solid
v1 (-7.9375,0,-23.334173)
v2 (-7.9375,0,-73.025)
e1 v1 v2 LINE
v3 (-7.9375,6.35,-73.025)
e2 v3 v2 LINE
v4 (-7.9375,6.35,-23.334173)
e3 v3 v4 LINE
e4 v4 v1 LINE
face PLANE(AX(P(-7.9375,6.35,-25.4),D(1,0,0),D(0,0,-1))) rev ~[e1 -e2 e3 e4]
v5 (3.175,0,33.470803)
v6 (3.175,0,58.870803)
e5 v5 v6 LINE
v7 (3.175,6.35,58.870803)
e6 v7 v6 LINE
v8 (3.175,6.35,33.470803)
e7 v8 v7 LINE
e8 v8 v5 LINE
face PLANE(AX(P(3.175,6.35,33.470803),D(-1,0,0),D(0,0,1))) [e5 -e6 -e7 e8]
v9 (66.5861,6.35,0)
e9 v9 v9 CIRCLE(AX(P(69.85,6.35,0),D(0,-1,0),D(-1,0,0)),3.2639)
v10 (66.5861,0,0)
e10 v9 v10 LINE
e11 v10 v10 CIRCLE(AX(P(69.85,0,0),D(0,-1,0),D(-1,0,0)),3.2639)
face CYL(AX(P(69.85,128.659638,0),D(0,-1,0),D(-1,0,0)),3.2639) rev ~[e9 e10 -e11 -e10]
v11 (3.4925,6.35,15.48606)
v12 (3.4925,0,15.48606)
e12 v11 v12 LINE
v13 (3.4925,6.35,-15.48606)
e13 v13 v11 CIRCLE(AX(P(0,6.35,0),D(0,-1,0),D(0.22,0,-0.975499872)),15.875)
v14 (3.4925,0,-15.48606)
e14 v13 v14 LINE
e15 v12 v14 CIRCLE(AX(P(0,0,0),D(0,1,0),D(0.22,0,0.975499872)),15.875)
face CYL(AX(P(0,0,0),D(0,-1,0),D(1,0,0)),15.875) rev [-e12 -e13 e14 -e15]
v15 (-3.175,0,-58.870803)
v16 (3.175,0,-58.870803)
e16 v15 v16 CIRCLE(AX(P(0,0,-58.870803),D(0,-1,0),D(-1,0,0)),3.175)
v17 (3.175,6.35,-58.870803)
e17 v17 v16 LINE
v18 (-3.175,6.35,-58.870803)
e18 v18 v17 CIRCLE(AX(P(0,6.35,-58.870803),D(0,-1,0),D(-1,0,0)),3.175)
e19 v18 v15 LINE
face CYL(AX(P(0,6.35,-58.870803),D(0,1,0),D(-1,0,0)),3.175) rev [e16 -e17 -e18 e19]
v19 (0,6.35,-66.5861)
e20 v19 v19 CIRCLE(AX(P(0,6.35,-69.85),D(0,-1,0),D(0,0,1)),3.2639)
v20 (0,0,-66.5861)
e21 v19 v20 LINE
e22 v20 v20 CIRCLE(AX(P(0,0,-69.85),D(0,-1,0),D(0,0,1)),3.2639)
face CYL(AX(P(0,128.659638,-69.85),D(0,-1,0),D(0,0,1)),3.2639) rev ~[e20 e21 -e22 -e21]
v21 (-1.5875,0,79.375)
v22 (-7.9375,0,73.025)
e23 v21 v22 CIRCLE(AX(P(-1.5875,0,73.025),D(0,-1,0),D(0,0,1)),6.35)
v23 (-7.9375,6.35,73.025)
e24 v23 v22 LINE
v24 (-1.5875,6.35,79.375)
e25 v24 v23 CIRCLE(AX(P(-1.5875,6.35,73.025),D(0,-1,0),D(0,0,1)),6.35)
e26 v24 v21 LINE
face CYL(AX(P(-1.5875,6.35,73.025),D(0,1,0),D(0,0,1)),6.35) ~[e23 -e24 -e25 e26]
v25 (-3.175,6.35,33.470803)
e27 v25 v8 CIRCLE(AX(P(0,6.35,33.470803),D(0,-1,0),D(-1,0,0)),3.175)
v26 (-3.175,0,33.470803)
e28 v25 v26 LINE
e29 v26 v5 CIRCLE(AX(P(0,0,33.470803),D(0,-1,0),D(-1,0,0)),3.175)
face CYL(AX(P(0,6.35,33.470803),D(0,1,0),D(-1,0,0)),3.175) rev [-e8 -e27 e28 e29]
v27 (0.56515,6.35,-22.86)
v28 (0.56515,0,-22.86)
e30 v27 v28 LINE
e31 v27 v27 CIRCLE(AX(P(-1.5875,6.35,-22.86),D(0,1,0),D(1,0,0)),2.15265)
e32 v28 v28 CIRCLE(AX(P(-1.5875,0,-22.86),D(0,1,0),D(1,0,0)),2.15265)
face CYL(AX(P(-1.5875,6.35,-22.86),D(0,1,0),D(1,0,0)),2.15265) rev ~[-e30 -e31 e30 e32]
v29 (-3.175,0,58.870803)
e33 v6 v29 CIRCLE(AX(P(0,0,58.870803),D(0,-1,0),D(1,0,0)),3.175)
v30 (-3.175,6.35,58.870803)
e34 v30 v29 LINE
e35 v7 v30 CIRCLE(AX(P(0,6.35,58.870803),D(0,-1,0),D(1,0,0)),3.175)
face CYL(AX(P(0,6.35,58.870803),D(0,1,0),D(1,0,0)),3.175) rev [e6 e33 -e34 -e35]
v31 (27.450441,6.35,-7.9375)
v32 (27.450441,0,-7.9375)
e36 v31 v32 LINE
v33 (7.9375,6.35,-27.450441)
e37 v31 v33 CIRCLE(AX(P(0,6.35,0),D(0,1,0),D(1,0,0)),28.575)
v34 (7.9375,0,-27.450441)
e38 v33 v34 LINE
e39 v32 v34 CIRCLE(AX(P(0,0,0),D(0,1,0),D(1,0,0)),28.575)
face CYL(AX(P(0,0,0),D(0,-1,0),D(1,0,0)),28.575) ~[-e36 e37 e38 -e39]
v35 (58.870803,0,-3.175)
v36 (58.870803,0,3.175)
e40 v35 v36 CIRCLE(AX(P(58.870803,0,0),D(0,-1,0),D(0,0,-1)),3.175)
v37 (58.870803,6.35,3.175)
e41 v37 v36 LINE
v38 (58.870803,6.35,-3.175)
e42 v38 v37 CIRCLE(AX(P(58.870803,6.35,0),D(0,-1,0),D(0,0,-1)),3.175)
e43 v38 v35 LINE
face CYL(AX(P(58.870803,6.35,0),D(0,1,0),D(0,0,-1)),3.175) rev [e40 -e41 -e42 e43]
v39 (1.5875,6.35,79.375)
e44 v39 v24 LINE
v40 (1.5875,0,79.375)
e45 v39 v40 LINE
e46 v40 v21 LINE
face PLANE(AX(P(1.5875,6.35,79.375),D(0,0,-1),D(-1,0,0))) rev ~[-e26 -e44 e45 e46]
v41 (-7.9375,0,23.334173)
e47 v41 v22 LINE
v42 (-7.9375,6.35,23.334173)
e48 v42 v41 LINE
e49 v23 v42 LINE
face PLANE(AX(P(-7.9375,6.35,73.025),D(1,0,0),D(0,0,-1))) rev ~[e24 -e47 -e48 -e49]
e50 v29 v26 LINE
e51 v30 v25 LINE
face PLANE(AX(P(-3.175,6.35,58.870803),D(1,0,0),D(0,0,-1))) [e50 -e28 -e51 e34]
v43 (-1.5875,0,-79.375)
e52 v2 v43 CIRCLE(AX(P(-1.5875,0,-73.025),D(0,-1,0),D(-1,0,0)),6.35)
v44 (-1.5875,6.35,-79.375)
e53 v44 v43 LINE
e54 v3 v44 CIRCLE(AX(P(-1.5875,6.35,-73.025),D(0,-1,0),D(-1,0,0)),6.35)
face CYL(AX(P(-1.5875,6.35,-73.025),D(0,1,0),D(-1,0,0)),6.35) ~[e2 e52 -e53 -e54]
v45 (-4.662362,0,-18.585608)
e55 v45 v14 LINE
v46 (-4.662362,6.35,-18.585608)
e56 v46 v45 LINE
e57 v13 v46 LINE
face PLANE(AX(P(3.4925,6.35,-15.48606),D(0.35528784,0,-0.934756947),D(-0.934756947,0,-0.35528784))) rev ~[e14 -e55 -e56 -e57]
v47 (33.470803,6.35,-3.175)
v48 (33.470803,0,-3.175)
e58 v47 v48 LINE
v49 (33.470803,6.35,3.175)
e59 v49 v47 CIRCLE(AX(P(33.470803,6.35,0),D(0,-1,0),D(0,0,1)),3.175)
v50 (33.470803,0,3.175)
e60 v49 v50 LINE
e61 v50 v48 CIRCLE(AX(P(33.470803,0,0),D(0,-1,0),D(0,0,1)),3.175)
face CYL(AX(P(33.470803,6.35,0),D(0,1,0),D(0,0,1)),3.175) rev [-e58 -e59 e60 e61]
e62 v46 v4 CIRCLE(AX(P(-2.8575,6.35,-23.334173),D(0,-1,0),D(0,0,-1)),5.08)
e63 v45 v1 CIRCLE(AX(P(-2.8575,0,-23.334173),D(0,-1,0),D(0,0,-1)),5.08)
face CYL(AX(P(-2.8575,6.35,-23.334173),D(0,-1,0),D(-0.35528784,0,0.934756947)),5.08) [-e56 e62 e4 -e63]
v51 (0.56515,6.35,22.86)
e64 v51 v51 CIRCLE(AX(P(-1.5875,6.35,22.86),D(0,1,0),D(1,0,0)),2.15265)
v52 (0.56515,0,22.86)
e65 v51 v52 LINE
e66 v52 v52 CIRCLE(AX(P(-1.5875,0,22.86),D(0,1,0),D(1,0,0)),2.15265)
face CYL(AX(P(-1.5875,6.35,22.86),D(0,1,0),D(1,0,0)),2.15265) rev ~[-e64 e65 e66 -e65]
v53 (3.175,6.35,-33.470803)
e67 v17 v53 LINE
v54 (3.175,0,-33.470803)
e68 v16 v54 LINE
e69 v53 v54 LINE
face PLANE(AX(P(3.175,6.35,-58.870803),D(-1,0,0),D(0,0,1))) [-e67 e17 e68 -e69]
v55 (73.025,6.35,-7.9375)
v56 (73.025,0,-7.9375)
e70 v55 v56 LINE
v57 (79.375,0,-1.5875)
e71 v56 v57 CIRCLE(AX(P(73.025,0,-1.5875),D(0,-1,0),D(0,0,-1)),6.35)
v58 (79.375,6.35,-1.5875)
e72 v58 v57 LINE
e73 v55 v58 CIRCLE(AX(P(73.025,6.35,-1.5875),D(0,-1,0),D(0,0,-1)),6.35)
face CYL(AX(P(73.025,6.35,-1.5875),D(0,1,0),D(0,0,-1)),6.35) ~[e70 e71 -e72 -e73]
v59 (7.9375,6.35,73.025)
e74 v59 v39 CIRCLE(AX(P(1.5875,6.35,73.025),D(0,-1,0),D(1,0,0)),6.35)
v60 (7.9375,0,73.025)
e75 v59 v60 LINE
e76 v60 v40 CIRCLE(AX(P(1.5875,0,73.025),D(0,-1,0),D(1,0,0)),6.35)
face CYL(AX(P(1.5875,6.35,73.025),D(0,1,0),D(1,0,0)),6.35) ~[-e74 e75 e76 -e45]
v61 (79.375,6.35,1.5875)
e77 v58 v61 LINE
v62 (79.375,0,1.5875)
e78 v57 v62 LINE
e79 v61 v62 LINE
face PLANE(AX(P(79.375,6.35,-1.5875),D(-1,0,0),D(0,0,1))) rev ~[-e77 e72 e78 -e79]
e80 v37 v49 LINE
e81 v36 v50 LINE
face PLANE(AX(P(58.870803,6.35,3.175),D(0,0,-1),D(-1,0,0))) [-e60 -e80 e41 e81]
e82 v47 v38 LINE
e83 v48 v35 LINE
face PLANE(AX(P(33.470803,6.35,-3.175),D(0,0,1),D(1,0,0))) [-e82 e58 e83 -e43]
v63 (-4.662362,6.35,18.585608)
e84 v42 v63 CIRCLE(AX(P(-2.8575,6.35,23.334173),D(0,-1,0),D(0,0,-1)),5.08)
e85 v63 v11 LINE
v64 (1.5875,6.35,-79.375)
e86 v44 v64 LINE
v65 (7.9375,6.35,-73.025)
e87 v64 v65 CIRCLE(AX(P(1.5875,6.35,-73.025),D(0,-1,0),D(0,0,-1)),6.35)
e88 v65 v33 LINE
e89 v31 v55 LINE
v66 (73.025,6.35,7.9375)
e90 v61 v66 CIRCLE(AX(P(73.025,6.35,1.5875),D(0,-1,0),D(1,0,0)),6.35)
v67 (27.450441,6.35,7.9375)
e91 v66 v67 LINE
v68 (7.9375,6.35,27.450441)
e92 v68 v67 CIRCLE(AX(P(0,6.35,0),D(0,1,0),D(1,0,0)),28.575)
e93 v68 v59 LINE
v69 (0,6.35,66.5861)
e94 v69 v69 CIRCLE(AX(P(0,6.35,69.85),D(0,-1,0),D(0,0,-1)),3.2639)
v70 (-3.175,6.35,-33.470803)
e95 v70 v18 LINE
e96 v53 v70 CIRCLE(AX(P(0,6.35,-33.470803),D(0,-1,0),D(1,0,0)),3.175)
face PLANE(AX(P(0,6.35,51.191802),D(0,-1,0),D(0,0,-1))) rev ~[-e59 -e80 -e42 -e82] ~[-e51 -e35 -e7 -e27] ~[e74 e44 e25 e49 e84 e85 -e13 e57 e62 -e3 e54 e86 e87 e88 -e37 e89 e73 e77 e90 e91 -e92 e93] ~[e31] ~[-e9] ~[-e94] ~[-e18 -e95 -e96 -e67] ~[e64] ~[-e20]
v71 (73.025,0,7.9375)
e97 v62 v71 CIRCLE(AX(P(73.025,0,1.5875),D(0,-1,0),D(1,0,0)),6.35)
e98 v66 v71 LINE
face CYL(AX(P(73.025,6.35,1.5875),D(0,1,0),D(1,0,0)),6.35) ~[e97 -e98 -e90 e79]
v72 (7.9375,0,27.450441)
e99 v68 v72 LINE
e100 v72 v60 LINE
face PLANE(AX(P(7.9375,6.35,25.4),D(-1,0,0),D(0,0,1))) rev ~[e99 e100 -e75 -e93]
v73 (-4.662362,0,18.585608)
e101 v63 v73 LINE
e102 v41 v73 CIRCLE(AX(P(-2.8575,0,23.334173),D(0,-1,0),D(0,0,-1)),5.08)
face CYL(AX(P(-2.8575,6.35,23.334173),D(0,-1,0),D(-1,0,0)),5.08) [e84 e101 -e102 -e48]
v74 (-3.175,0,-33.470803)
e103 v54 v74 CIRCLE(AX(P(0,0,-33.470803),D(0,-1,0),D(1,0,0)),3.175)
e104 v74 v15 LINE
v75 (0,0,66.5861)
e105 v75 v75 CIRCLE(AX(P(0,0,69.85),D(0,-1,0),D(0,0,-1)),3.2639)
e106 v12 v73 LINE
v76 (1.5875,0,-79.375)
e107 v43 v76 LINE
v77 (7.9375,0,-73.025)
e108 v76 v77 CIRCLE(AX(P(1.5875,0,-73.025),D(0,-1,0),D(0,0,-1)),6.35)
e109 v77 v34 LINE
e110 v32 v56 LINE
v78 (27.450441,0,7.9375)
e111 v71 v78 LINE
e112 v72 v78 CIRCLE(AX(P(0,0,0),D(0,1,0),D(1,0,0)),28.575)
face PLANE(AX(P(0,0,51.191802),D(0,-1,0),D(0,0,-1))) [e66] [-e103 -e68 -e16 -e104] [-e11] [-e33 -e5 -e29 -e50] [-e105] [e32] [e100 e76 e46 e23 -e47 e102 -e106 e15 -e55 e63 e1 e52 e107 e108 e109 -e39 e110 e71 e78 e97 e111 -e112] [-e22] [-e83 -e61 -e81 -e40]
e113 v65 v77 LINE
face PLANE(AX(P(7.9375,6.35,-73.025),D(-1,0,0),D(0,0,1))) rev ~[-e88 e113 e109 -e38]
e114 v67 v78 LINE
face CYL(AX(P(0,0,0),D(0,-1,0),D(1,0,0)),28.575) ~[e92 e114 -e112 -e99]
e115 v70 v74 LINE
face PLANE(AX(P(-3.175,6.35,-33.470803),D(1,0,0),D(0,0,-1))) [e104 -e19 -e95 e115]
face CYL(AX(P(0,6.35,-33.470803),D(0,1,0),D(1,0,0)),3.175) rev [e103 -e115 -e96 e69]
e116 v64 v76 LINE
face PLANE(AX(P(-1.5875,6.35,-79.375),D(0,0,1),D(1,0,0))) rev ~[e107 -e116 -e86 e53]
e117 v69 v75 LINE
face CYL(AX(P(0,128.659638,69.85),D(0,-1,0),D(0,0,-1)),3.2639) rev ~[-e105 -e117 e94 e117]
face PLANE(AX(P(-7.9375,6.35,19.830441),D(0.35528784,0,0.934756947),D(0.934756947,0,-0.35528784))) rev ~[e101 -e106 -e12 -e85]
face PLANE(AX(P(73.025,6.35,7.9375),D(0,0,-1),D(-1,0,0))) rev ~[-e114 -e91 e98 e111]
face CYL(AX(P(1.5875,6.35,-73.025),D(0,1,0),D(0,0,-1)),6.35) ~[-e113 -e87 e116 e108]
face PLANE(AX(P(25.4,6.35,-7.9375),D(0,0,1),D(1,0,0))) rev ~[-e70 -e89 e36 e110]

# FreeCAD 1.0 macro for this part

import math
import FreeCAD as App
import Part
import Sketcher

V = App.Vector
Q = App.Units.Quantity


def edges_at(feature, points):
    """Names of the edges that pass closest to the given points."""
    edges = feature.Shape.Edges
    near = lambda p: min(range(len(edges)), key=lambda i: edges[i].distToShape(Part.Vertex(*p))[0])
    return sorted({f"Edge{near(p) + 1}" for p in points})


def add_polygon(sketch, points):
    """Adds a closed chain of lines whose ends are joined by coincident constraints."""
    first, n = sketch.GeometryCount, len(points)
    for a, b in zip(points, points[1:] + points[:1]):
        sketch.addGeometry(Part.LineSegment(App.Vector(*a, 0), App.Vector(*b, 0)), False)
    for i in range(n):
        sketch.addConstraint(Sketcher.Constraint("Coincident", first + i, 2, first + (i + 1) % n, 1))

doc = App.newDocument("Part")
body = doc.addObject("PartDesign::Body", "Body")

# Sketch on XZ plane
sketch1 = body.newObject("Sketcher::SketchObject", "Sketch")
sketch1.AttachmentSupport = (doc.getObject("XZ_Plane"), [""])
sketch1.MapMode = "FlatFace"
sketch1.addGeometry(Part.Circle(V(0, 0, 0), V(0, 0, 1), 28.575), False)
sketch1.addGeometry(Part.Circle(V(0, 0, 0), V(0, 0, 1), 15.875), False)
sketch1.addConstraint(Sketcher.Constraint("Coincident", 0, 3, -1, 1))
sketch1.addConstraint(Sketcher.Constraint("Coincident", 1, 3, -1, 1))
sketch1.addConstraint(Sketcher.Constraint("Diameter", 0, Q("2.25 in")))
sketch1.addConstraint(Sketcher.Constraint("Diameter", 1, Q("1.25 in")))
pad1 = body.newObject("PartDesign::Pad", "Pad")
pad1.Profile = sketch1
pad1.Length = Q("0.25 in")
pad1.Reversed = True

# Sketch on XZ plane
sketch2 = body.newObject("Sketcher::SketchObject", "Sketch001")
sketch2.AttachmentSupport = (doc.getObject("XZ_Plane"), [""])
sketch2.MapMode = "FlatFace"
sketch2.AttachmentOffset = App.Placement(V(0, 0, -0.25 * 25.4), App.Rotation())
sketch2.addGeometry(Part.LineSegment(V(25.4, 7.9375, 0), V(73.025, 7.9375, 0)), False)
sketch2.addGeometry(Part.ArcOfCircle(Part.Circle(V(73.025, 1.5875, 0), V(0, 0, 1), 6.35), math.radians(0), math.radians(90)), False)
sketch2.addGeometry(Part.LineSegment(V(79.375, 1.5875, 0), V(79.375, -1.5875, 0)), False)
sketch2.addGeometry(Part.ArcOfCircle(Part.Circle(V(73.025, -1.5875, 0), V(0, 0, 1), 6.35), math.radians(-90), math.radians(0)), False)
sketch2.addGeometry(Part.LineSegment(V(73.025, -7.9375, 0), V(25.4, -7.9375, 0)), False)
sketch2.addGeometry(Part.LineSegment(V(25.4, -7.9375, 0), V(25.4, 7.9375, 0)), False)
sketch2.addGeometry(Part.LineSegment(V(58.870803, 3.175, 0), V(33.470803, 3.175, 0)), False)
sketch2.addGeometry(Part.ArcOfCircle(Part.Circle(V(33.470803, 0, 0), V(0, 0, 1), 3.175), math.radians(90), math.radians(270)), False)
sketch2.addGeometry(Part.LineSegment(V(33.470803, -3.175, 0), V(58.870803, -3.175, 0)), False)
sketch2.addGeometry(Part.ArcOfCircle(Part.Circle(V(58.870803, 0, 0), V(0, 0, 1), 3.175), math.radians(-90), math.radians(90)), False)
sketch2.addConstraint(Sketcher.Constraint("Tangent", 0, 2, 1, 2))
sketch2.addConstraint(Sketcher.Constraint("Tangent", 1, 1, 2, 1))
sketch2.addConstraint(Sketcher.Constraint("Tangent", 2, 2, 3, 2))
sketch2.addConstraint(Sketcher.Constraint("Tangent", 3, 1, 4, 1))
sketch2.addConstraint(Sketcher.Constraint("Coincident", 4, 2, 5, 1))
sketch2.addConstraint(Sketcher.Constraint("Coincident", 5, 2, 0, 1))
sketch2.addConstraint(Sketcher.Constraint("Tangent", 6, 2, 7, 1))
sketch2.addConstraint(Sketcher.Constraint("Tangent", 7, 2, 8, 1))
sketch2.addConstraint(Sketcher.Constraint("Tangent", 8, 2, 9, 1))
sketch2.addConstraint(Sketcher.Constraint("Tangent", 9, 2, 6, 1))
sketch2.addConstraint(Sketcher.Constraint("Horizontal", 0))
sketch2.addConstraint(Sketcher.Constraint("Vertical", 2))
sketch2.addConstraint(Sketcher.Constraint("Horizontal", 4))
sketch2.addConstraint(Sketcher.Constraint("Vertical", 5))
sketch2.addConstraint(Sketcher.Constraint("Horizontal", 6))
sketch2.addConstraint(Sketcher.Constraint("Horizontal", 8))
sketch2.addConstraint(Sketcher.Constraint("Equal", 1, 3))
sketch2.addConstraint(Sketcher.Constraint("PointOnObject", 7, 3, -1))
sketch2.addConstraint(Sketcher.Constraint("DistanceX", 6, 2, 6, 1, Q("1 in")))
sketch2.addConstraint(Sketcher.Constraint("Radius", 1, Q("0.25 in")))
sketch2.addConstraint(Sketcher.Constraint("DistanceX", -1, 1, 4, 2, Q("1 in")))
sketch2.addConstraint(Sketcher.Constraint("Radius", 7, Q("0.125 in")))
sketch2.addConstraint(Sketcher.Constraint("DistanceX", 0, 1, 0, 2, Q("1.875 in")))
sketch2.addConstraint(Sketcher.Constraint("DistanceY", 2, 2, 2, 1, Q("0.125 in")))
sketch2.addConstraint(Sketcher.Constraint("DistanceY", -1, 1, 1, 3, Q("0.0625 in")))
sketch2.addConstraint(Sketcher.Constraint("DistanceX", -1, 1, 7, 3, 33.470803))
pad2 = body.newObject("PartDesign::Pad", "Pad001")
pad2.Profile = sketch2
pad2.Length = Q("0.25 in")

# Sketch on XZ plane
sketch3 = body.newObject("Sketcher::SketchObject", "Sketch002")
sketch3.AttachmentSupport = (doc.getObject("XZ_Plane"), [""])
sketch3.MapMode = "FlatFace"
sketch3.AttachmentOffset = App.Placement(V(0, 0, -0.25 * 25.4), App.Rotation())
sketch3.addGeometry(Part.Circle(V(69.85, 0, 0), V(0, 0, 1), 3.2639), False)
sketch3.addConstraint(Sketcher.Constraint("PointOnObject", 0, 3, -1))
sketch3.addConstraint(Sketcher.Constraint("Diameter", 0, Q("0.257 in")))
sketch3.addConstraint(Sketcher.Constraint("DistanceX", -1, 1, 0, 3, Q("2.75 in")))
doc.recompute()
hole = body.newObject("PartDesign::Hole", "Hole")
hole.Profile = sketch3
hole.ThreadType = "None"
hole.Diameter = Q("0.257 in")
hole.DepthType = "ThroughAll"
hole.Reversed = True
doc.recompute()

polarpattern = body.newObject("PartDesign::PolarPattern", "PolarPattern")
polarpattern.Originals = [pad2, hole]
polarpattern.Axis = (doc.getObject("Y_Axis"), [""])
polarpattern.Angle = 360
polarpattern.Occurrences = 4
body.Tip = polarpattern

# Sketch on XZ plane
sketch4 = body.newObject("Sketcher::SketchObject", "Sketch003")
sketch4.AttachmentSupport = (doc.getObject("XZ_Plane"), [""])
sketch4.MapMode = "FlatFace"
sketch4.AttachmentOffset = App.Placement(V(0, 0, -0.25 * 25.4), App.Rotation())
add_polygon(sketch4, [(-7.9375, -19.830441), (-7.9375, -52.536572), (-88.152777, -52.536572), (-88.152777, 52.536572), (-7.9375, 52.536572), (-7.9375, 19.830441), (3.4925, 15.48606), (3.4925, -15.48606)])  # lines 0-7
sketch4.addConstraint(Sketcher.Constraint("Vertical", 0))
sketch4.addConstraint(Sketcher.Constraint("Horizontal", 1))
sketch4.addConstraint(Sketcher.Constraint("Vertical", 2))
sketch4.addConstraint(Sketcher.Constraint("Horizontal", 3))
sketch4.addConstraint(Sketcher.Constraint("Vertical", 4))
sketch4.addConstraint(Sketcher.Constraint("Vertical", 6))
sketch4.addConstraint(Sketcher.Constraint("Symmetric", 0, 2, 3, 2, -1))
sketch4.addConstraint(Sketcher.Constraint("Equal", 0, 4))
sketch4.addConstraint(Sketcher.Constraint("Equal", 5, 7))
sketch4.addConstraint(Sketcher.Constraint("DistanceX", 4, 2, 5, 2, Q("0.45 in")))
sketch4.addConstraint(Sketcher.Constraint("DistanceX", 0, 2, -1, 1, Q("0.3125 in")))
sketch4.addConstraint(Sketcher.Constraint("DistanceY", 0, 2, 0, 1, 32.70613))
sketch4.addConstraint(Sketcher.Constraint("DistanceY", 6, 2, 6, 1, 30.972121))
sketch4.addConstraint(Sketcher.Constraint("DistanceY", 6, 2, 4, 2, 35.316502))
sketch4.addConstraint(Sketcher.Constraint("DistanceX", 1, 2, 1, 1, 80.215277))
pocket1 = body.newObject("PartDesign::Pocket", "Pocket")
pocket1.Profile = sketch4
pocket1.Type = "ThroughAll"
pocket1.Reversed = True
doc.recompute()

fillet = body.newObject("PartDesign::Fillet", "Fillet")
fillet.Base = (pocket1, edges_at(pocket1, [(-7.938, 3.175, 19.83), (-7.938, 3.175, -19.83)]))
fillet.Radius = Q("0.2 in")

# Sketch on XZ plane
sketch5 = body.newObject("Sketcher::SketchObject", "Sketch004")
sketch5.AttachmentSupport = (doc.getObject("XZ_Plane"), [""])
sketch5.MapMode = "FlatFace"
sketch5.AttachmentOffset = App.Placement(V(0, 0, -0.25 * 25.4), App.Rotation())
sketch5.addGeometry(Part.Circle(V(-1.5875, -22.86, 0), V(0, 0, 1), 2.15265), False)
sketch5.addGeometry(Part.Circle(V(-1.5875, 22.86, 0), V(0, 0, 1), 2.15265), False)
sketch5.addConstraint(Sketcher.Constraint("Equal", 0, 1))
sketch5.addConstraint(Sketcher.Constraint("Symmetric", 0, 3, 1, 3, -1))
sketch5.addConstraint(Sketcher.Constraint("Diameter", 0, Q("0.1695 in")))
sketch5.addConstraint(Sketcher.Constraint("DistanceY", 0, 3, -1, 1, Q("0.9 in")))
sketch5.addConstraint(Sketcher.Constraint("DistanceX", 0, 3, -1, 1, Q("0.0625 in")))
pocket2 = body.newObject("PartDesign::Pocket", "Pocket001")
pocket2.Profile = sketch5
pocket2.Type = "ThroughAll"
pocket2.Reversed = True

doc.recompute()
